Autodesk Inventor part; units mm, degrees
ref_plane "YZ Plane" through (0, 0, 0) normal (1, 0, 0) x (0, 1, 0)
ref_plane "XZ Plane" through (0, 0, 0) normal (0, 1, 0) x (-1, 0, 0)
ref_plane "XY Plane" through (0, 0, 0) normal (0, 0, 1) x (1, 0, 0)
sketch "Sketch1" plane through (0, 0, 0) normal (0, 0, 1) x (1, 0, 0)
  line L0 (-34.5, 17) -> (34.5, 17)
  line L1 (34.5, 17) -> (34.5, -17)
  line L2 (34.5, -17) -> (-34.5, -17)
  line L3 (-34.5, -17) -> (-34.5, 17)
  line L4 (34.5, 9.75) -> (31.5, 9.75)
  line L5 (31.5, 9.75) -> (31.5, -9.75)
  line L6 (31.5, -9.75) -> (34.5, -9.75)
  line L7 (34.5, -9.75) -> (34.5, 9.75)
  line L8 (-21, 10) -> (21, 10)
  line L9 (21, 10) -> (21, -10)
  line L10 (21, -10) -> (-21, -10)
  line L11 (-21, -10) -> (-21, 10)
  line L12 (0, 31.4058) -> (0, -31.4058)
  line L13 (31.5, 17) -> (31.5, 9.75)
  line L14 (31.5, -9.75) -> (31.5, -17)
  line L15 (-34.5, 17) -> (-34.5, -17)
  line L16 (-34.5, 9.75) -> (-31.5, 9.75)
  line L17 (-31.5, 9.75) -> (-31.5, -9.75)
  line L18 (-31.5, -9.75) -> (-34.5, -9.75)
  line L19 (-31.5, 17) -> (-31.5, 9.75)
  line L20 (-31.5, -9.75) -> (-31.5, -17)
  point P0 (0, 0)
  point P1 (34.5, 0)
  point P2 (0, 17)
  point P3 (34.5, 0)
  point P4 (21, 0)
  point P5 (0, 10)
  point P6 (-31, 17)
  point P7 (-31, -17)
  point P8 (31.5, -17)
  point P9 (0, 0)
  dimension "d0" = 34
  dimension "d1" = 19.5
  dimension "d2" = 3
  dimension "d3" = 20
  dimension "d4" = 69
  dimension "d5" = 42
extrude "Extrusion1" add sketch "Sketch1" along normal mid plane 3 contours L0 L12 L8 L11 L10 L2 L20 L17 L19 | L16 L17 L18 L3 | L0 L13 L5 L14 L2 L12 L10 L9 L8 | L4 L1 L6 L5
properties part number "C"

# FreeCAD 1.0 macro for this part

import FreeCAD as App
import Part
import Sketcher
from FreeCAD import Vector


def add_polygon(sketch, points):
    """Adds a closed chain of lines whose ends are joined by coincident constraints."""
    first, n = sketch.GeometryCount, len(points)
    for a, b in zip(points, points[1:] + points[:1]):
        sketch.addGeometry(Part.LineSegment(App.Vector(*a, 0), App.Vector(*b, 0)), False)
    for i in range(n):
        sketch.addConstraint(Sketcher.Constraint("Coincident", first + i, 2, first + (i + 1) % n, 1))

doc = App.newDocument("Part")
body = doc.addObject("PartDesign::Body", "Body")

sketch1 = body.newObject("Sketcher::SketchObject", "Sketch")
sketch1.AttachmentSupport = (doc.getObject("XY_Plane"), [""])
sketch1.MapMode = "FlatFace"
add_polygon(sketch1, [(-31.5, 17), (-31.5, 9.75), (-34.5, 9.75), (-34.5, -9.75), (-31.5, -9.75), (-31.5, -17), (31.5, -17), (31.5, -9.75), (34.5, -9.75), (34.5, 9.75), (31.5, 9.75), (31.5, 17)])
add_polygon(sketch1, [(-21, 10), (21, 10), (21, -10), (-21, -10)])
sketch1.addConstraint([
    Sketcher.Constraint("Vertical", 0),
    Sketcher.Constraint("Horizontal", 1),
    Sketcher.Constraint("Vertical", 2),
    Sketcher.Constraint("Horizontal", 3),
    Sketcher.Constraint("Vertical", 4),
    Sketcher.Constraint("Horizontal", 5),
    Sketcher.Constraint("Vertical", 6),
    Sketcher.Constraint("Horizontal", 7),
    Sketcher.Constraint("Vertical", 8),
    Sketcher.Constraint("Horizontal", 9),
    Sketcher.Constraint("Vertical", 10),
    Sketcher.Constraint("Horizontal", 11),
    Sketcher.Constraint("Horizontal", 12),
    Sketcher.Constraint("Vertical", 13),
    Sketcher.Constraint("Horizontal", 14),
    Sketcher.Constraint("Vertical", 15),
    Sketcher.Constraint("Symmetric", 0, 2, 6, 2, -1, 1),
    Sketcher.Constraint("Symmetric", 2, 2, 8, 2, -1, 1),
    Sketcher.Constraint("Symmetric", 4, 2, 10, 2, -1, 1),
    Sketcher.Constraint("Symmetric", 12, 2, 14, 2, -1, 1),
    Sketcher.Constraint("Symmetric", 3, 2, 6, 2, -2),
    Sketcher.Constraint("DistanceX", 1, 2, 1, 1, 3.0),
    Sketcher.Constraint("DistanceX", 12, 1, 12, 2, 42.0),
    Sketcher.Constraint("DistanceY", 13, 2, 13, 1, 20.0),
    Sketcher.Constraint("DistanceY", 2, 2, 2, 1, 19.5),
    Sketcher.Constraint("DistanceY", 5, 2, 10, 2, 34.0),
    Sketcher.Constraint("DistanceX", 5, 1, 5, 2, 63.0),
])
pad1 = body.newObject("PartDesign::Pad", "Pad")
pad1.Profile = sketch1
pad1.Length = 3
pad1.Midplane = True

doc.recompute()
